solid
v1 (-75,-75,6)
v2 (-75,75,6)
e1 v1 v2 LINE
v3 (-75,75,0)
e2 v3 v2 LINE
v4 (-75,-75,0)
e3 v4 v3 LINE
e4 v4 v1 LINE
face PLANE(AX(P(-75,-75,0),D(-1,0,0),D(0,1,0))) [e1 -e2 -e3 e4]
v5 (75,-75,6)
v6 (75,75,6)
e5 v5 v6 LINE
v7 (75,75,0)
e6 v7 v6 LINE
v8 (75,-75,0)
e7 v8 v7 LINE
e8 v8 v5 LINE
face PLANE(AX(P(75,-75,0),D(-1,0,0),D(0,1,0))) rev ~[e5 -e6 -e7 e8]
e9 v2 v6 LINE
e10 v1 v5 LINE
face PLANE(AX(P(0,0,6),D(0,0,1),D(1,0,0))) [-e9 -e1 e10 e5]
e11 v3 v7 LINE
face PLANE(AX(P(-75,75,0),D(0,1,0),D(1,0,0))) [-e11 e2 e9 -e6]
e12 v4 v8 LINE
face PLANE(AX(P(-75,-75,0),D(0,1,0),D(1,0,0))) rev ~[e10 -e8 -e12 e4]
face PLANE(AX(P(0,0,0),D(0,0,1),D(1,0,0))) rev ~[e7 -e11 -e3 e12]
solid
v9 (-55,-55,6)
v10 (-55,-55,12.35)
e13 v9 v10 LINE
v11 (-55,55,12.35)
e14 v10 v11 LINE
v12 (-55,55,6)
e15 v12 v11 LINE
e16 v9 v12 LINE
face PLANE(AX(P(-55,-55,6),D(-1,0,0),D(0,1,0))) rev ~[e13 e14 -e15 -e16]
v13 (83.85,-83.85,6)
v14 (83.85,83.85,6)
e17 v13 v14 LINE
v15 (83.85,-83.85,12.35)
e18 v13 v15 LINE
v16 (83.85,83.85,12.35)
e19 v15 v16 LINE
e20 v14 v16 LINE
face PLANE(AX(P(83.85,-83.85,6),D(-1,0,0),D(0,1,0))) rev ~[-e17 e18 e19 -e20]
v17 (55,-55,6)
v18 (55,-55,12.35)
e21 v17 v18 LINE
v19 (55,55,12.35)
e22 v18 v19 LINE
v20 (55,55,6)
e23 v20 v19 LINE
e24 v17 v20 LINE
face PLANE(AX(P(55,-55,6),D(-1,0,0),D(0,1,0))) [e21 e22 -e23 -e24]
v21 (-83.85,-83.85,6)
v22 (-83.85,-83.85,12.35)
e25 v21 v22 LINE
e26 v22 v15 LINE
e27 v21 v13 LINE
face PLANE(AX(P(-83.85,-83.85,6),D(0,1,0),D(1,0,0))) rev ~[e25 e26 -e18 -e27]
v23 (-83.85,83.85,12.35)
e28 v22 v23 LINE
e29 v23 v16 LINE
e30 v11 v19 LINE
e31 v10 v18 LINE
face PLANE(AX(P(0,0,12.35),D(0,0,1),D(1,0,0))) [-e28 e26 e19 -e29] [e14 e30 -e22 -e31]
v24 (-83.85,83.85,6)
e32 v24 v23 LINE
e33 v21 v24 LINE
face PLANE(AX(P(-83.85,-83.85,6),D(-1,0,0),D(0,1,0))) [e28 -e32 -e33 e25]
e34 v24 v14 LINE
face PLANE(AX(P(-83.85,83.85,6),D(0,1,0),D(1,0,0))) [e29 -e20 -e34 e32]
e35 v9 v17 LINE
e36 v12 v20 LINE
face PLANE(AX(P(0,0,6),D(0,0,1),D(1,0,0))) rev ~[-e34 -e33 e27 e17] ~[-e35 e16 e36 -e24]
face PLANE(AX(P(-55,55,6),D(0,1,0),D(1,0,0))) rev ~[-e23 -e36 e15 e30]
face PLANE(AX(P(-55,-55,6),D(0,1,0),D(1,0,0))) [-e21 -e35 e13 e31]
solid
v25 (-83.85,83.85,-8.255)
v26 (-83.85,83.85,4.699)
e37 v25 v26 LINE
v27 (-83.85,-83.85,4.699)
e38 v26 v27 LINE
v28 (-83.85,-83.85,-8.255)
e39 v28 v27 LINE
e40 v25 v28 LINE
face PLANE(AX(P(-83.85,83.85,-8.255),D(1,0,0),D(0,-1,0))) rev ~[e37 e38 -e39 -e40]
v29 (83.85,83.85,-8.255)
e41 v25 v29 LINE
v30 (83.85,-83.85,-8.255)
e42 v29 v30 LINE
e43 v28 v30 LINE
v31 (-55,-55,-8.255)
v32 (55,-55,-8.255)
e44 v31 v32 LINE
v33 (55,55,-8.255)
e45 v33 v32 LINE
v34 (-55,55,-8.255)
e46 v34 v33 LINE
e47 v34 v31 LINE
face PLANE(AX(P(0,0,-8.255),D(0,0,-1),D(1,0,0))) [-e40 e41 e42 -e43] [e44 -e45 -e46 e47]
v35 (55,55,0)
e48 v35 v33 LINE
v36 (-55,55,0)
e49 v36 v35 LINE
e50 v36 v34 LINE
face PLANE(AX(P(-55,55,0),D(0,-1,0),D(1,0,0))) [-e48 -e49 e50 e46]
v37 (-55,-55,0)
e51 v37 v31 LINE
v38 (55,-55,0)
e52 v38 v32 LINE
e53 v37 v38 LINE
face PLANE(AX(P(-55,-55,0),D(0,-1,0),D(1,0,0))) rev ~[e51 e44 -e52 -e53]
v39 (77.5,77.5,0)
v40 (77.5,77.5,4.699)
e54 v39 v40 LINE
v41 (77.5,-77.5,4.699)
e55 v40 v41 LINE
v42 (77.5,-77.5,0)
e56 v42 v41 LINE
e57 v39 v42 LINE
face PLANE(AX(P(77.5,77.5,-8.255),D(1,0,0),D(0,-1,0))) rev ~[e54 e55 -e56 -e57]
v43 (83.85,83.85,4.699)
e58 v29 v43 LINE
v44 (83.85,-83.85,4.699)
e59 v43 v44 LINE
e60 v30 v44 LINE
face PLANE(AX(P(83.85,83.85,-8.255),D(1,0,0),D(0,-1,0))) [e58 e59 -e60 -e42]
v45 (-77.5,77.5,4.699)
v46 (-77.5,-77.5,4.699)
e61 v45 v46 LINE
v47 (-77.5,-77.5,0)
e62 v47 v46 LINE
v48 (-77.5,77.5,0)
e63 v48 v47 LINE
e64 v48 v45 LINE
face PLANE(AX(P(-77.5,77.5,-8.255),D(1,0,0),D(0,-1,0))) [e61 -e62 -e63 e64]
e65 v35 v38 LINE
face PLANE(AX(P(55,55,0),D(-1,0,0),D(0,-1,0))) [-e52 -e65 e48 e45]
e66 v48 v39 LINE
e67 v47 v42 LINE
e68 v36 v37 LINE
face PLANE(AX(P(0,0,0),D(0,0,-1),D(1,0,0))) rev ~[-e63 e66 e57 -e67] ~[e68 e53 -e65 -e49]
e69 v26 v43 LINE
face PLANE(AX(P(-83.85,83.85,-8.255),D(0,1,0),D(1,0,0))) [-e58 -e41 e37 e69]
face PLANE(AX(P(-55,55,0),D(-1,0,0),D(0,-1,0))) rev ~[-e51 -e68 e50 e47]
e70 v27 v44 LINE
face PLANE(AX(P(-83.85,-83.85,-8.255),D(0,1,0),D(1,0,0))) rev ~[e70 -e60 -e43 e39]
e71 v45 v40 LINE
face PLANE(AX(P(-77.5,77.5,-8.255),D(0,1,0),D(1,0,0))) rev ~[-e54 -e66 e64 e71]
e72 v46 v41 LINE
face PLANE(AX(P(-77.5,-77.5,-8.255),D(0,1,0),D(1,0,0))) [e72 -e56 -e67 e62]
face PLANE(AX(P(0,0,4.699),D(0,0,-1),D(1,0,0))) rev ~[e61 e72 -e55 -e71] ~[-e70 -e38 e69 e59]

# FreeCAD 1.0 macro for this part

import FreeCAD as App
import Part
import Sketcher
Q = App.Units.Quantity


def add_polygon(sketch, points):
    """Adds a closed chain of lines whose ends are joined by coincident constraints."""
    first, n = sketch.GeometryCount, len(points)
    for a, b in zip(points, points[1:] + points[:1]):
        sketch.addGeometry(Part.LineSegment(App.Vector(*a, 0), App.Vector(*b, 0)), False)
    for i in range(n):
        sketch.addConstraint(Sketcher.Constraint("Coincident", first + i, 2, first + (i + 1) % n, 1))

doc = App.newDocument("Part")
body = doc.addObject("PartDesign::Body", "Body")

# Sketch on XY plane
sketch1 = body.newObject("Sketcher::SketchObject", "Sketch")
sketch1.AttachmentSupport = (doc.getObject("XY_Plane"), [""])
sketch1.MapMode = "FlatFace"
add_polygon(sketch1, [(-75, 75), (-75, -75), (75, -75), (75, 75)])  # lines 0-3
sketch1.addConstraint([
    Sketcher.Constraint("Vertical", 0),
    Sketcher.Constraint("Horizontal", 1),
    Sketcher.Constraint("Vertical", 2),
    Sketcher.Constraint("Horizontal", 3),
    Sketcher.Constraint("Symmetric", 0, 2, 2, 2, -1, 1),
    Sketcher.Constraint("Equal", 3, 0),
    Sketcher.Constraint("DistanceX", 1, 1, 1, 2, Q("150 mm")),
])
pad1 = body.newObject("PartDesign::Pad", "Pad")
pad1.Profile = sketch1
pad1.Length = 6
body2 = doc.addObject("PartDesign::Body", "Body001")

# Sketch on XY plane
sketch2 = body2.newObject("Sketcher::SketchObject", "Sketch001")
sketch2.AttachmentSupport = (doc.getObject("XY_Plane001"), [""])
sketch2.MapMode = "FlatFace"
add_polygon(sketch2, [(-77.5, -77.5), (-77.5, 77.5), (77.5, 77.5), (77.5, -77.5)])  # lines 0-3
add_polygon(sketch2, [(55, 55), (-55, 55), (-55, -55), (55, -55)])  # lines 4-7
sketch2.addConstraint([
    Sketcher.Constraint("Vertical", 0),
    Sketcher.Constraint("Horizontal", 1),
    Sketcher.Constraint("Vertical", 2),
    Sketcher.Constraint("Horizontal", 3),
    Sketcher.Constraint("Horizontal", 4),
    Sketcher.Constraint("Vertical", 5),
    Sketcher.Constraint("Horizontal", 6),
    Sketcher.Constraint("Vertical", 7),
    Sketcher.Constraint("Symmetric", 0, 2, 2, 2, -1, 1),
    Sketcher.Constraint("Symmetric", 4, 2, 6, 2, -1, 1),
    Sketcher.Constraint("Equal", 3, 0),
    Sketcher.Constraint("Equal", 6, 5),
    Sketcher.Constraint("DistanceX", 1, 1, 1, 2, Q("155 mm")),
    Sketcher.Constraint("DistanceX", 4, 2, 4, 1, Q("110 mm")),
])
pad2 = body2.newObject("PartDesign::Pad", "Pad001")
pad2.Profile = sketch2
pad2.Length = 8.255
pad2.Reversed = True

# Sketch on XY plane
sketch3 = body2.newObject("Sketcher::SketchObject", "Sketch002")
sketch3.AttachmentSupport = (doc.getObject("XY_Plane001"), [""])
sketch3.MapMode = "FlatFace"
sketch3.AttachmentOffset = App.Placement(App.Vector(0, 0, -8.255), App.Rotation())
add_polygon(sketch3, [(-83.85, -83.85), (-83.85, 83.85), (83.85, 83.85), (83.85, -83.85)])  # lines 0-3
add_polygon(sketch3, [(77.5, 77.5), (-77.5, 77.5), (-77.5, -77.5), (77.5, -77.5)])  # lines 4-7
sketch3.addConstraint([
    Sketcher.Constraint("Vertical", 0),
    Sketcher.Constraint("Horizontal", 1),
    Sketcher.Constraint("Vertical", 2),
    Sketcher.Constraint("Horizontal", 3),
    Sketcher.Constraint("Horizontal", 4),
    Sketcher.Constraint("Vertical", 5),
    Sketcher.Constraint("Horizontal", 6),
    Sketcher.Constraint("Vertical", 7),
    Sketcher.Constraint("Symmetric", 0, 2, 2, 2, -1, 1),
    Sketcher.Constraint("Symmetric", 4, 2, 6, 2, -1, 1),
    Sketcher.Constraint("Equal", 3, 0),
    Sketcher.Constraint("Equal", 6, 5),
    Sketcher.Constraint("DistanceX", 4, 2, 4, 1, Q("155 mm")),
    Sketcher.Constraint("DistanceX", 1, 1, 1, 2, Q("167.7 mm")),
])
pad3 = body2.newObject("PartDesign::Pad", "Pad002")
pad3.Profile = sketch3
pad3.Length = 12.954
body3 = doc.addObject("PartDesign::Body", "Body002")

# Sketch on XY plane
sketch4 = body3.newObject("Sketcher::SketchObject", "Sketch003")
sketch4.AttachmentSupport = (doc.getObject("XY_Plane002"), [""])
sketch4.MapMode = "FlatFace"
sketch4.AttachmentOffset = App.Placement(App.Vector(0, 0, 6), App.Rotation())
add_polygon(sketch4, [(-83.85, 83.85), (-83.85, -83.85), (83.85, -83.85), (83.85, 83.85)])  # lines 0-3
add_polygon(sketch4, [(55, -55), (-55, -55), (-55, 55), (55, 55)])  # lines 4-7
sketch4.addConstraint([
    Sketcher.Constraint("Vertical", 0),
    Sketcher.Constraint("Horizontal", 1),
    Sketcher.Constraint("Vertical", 2),
    Sketcher.Constraint("Horizontal", 3),
    Sketcher.Constraint("Horizontal", 4),
    Sketcher.Constraint("Vertical", 5),
    Sketcher.Constraint("Horizontal", 6),
    Sketcher.Constraint("Vertical", 7),
    Sketcher.Constraint("Symmetric", 0, 2, 2, 2, -1, 1),
    Sketcher.Constraint("Symmetric", 4, 2, 6, 2, -1, 1),
    Sketcher.Constraint("Equal", 3, 0),
    Sketcher.Constraint("Equal", 6, 5),
    Sketcher.Constraint("DistanceX", 4, 2, 4, 1, Q("110 mm")),
    Sketcher.Constraint("DistanceX", 1, 1, 1, 2, Q("167.7 mm")),
])
pad4 = body3.newObject("PartDesign::Pad", "Pad003")
pad4.Profile = sketch4
pad4.Length = 6.35

doc.recompute()
